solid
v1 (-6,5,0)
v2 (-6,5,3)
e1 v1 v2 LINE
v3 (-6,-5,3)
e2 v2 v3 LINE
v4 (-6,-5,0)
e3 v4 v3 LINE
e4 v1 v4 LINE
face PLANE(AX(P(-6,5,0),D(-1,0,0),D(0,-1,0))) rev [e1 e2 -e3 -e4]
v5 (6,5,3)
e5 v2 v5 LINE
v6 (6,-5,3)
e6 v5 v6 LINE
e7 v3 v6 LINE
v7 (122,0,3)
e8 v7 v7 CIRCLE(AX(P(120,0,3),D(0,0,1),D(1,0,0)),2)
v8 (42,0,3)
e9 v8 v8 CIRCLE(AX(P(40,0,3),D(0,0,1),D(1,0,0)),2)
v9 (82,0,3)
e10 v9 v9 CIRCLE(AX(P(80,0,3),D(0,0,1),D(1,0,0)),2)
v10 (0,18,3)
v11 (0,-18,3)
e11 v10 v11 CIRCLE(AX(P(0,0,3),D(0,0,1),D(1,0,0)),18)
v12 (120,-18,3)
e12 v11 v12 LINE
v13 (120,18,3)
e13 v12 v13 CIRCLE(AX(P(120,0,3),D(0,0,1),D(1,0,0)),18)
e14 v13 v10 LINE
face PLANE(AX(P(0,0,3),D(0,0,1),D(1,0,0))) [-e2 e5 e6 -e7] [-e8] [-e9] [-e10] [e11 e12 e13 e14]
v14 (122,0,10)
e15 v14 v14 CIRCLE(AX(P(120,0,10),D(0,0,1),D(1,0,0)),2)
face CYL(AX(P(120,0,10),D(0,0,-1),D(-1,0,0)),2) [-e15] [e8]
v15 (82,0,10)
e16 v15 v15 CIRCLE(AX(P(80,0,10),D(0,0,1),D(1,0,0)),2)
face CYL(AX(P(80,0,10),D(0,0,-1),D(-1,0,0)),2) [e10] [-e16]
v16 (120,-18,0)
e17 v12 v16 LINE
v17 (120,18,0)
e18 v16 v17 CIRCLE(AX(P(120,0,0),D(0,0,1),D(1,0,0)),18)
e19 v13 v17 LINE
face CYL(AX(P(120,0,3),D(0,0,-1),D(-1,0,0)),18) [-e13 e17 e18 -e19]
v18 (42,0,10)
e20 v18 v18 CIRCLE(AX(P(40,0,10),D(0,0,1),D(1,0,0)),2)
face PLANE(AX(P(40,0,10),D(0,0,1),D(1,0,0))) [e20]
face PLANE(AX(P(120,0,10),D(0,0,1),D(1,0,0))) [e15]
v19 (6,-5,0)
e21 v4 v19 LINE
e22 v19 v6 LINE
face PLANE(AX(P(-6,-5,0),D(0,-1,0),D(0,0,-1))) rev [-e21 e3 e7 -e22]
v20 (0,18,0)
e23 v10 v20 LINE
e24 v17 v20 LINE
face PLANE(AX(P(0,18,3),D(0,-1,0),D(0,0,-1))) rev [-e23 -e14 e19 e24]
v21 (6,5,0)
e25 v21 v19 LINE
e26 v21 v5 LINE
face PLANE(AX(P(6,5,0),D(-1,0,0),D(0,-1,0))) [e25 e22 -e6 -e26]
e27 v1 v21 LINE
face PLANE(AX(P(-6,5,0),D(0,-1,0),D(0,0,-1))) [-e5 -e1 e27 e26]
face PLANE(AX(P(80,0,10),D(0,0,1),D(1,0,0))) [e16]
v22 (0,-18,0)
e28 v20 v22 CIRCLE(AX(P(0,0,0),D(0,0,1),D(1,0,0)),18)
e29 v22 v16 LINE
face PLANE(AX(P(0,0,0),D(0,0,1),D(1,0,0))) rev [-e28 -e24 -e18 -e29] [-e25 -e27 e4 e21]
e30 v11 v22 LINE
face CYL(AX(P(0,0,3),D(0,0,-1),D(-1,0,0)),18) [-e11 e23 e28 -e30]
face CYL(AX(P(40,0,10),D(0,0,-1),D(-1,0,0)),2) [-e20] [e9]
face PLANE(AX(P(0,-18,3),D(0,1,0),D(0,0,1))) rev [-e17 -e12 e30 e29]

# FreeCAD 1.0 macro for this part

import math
import FreeCAD as App
import Part
import Sketcher

V = App.Vector


def add_polygon(sketch, points):
    """Adds a closed chain of lines whose ends are joined by coincident constraints."""
    first, n = sketch.GeometryCount, len(points)
    for a, b in zip(points, points[1:] + points[:1]):
        sketch.addGeometry(Part.LineSegment(App.Vector(*a, 0), App.Vector(*b, 0)), False)
    for i in range(n):
        sketch.addConstraint(Sketcher.Constraint("Coincident", first + i, 2, first + (i + 1) % n, 1))

doc = App.newDocument("Part")
body = doc.addObject("PartDesign::Body", "Body")

sketch1 = body.newObject("Sketcher::SketchObject", "Sketch")
sketch1.AttachmentSupport = (doc.getObject("XY_Plane"), [""])
sketch1.MapMode = "FlatFace"
sketch1.addGeometry(Part.LineSegment(V(120, 18, 0), V(0, 18, 0)), False)
sketch1.addGeometry(Part.ArcOfCircle(Part.Circle(V(0, 0, 0), V(0, 0, 1), 18), math.radians(90), math.radians(270)), False)
sketch1.addGeometry(Part.LineSegment(V(0, -18, 0), V(120, -18, 0)), False)
sketch1.addGeometry(Part.ArcOfCircle(Part.Circle(V(120, 0, 0), V(0, 0, 1), 18), math.radians(-90), math.radians(90)), False)
sketch1.addConstraint(Sketcher.Constraint("Tangent", 0, 2, 1, 1))
sketch1.addConstraint(Sketcher.Constraint("Tangent", 1, 2, 2, 1))
sketch1.addConstraint(Sketcher.Constraint("Tangent", 2, 2, 3, 1))
sketch1.addConstraint(Sketcher.Constraint("Tangent", 3, 2, 0, 1))
sketch1.addConstraint(Sketcher.Constraint("Horizontal", 0))
sketch1.addConstraint(Sketcher.Constraint("Horizontal", 2))
sketch1.addConstraint(Sketcher.Constraint("Coincident", 1, 3, -1, 1))
sketch1.addConstraint(Sketcher.Constraint("Radius", 1, 18.0))
sketch1.addConstraint(Sketcher.Constraint("DistanceX", 0, 2, 0, 1, 120.0))
pad1 = body.newObject("PartDesign::Pad", "Pad")
pad1.Profile = sketch1
pad1.Length = 3

sketch2 = body.newObject("Sketcher::SketchObject", "Sketch001")
sketch2.AttachmentSupport = (doc.getObject("XY_Plane"), [""])
sketch2.MapMode = "FlatFace"
sketch2.AttachmentOffset = App.Placement(V(0, 0, 3), App.Rotation())
add_polygon(sketch2, [(-6, 5), (-6, -5), (6, -5), (6, 5)])
sketch2.addConstraint(Sketcher.Constraint("Vertical", 0))
sketch2.addConstraint(Sketcher.Constraint("Horizontal", 1))
sketch2.addConstraint(Sketcher.Constraint("Vertical", 2))
sketch2.addConstraint(Sketcher.Constraint("Horizontal", 3))
sketch2.addConstraint(Sketcher.Constraint("Symmetric", 0, 2, 2, 2, -1, 1))
sketch2.addConstraint(Sketcher.Constraint("DistanceX", 1, 1, 1, 2, 12.0))
sketch2.addConstraint(Sketcher.Constraint("DistanceY", 0, 2, 0, 1, 10.0))
pocket1 = body.newObject("PartDesign::Pocket", "Pocket")
pocket1.Profile = sketch2
pocket1.Length = 3

sketch3 = body.newObject("Sketcher::SketchObject", "Sketch002")
sketch3.AttachmentSupport = (doc.getObject("XY_Plane"), [""])
sketch3.MapMode = "FlatFace"
sketch3.AttachmentOffset = App.Placement(V(0, 0, 3), App.Rotation())
sketch3.addGeometry(Part.Circle(V(120, 0, 0), V(0, 0, 1), 2), False)
sketch3.addConstraint(Sketcher.Constraint("PointOnObject", 0, 3, -1))
sketch3.addConstraint(Sketcher.Constraint("Diameter", 0, 4.0))
sketch3.addConstraint(Sketcher.Constraint("DistanceX", -1, 1, 0, 3, 120.0))
pad2 = body.newObject("PartDesign::Pad", "Pad001")
pad2.Profile = sketch3
pad2.Length = 7
doc.recompute()

linearpattern = body.newObject("PartDesign::LinearPattern", "LinearPattern")
linearpattern.Originals = [pad2]
linearpattern.Direction = (doc.getObject("X_Axis"), [""])
linearpattern.Mode = "offset"
linearpattern.Offset = 40
linearpattern.Occurrences = 3
linearpattern.Reversed = True
body.Tip = linearpattern

doc.recompute()
